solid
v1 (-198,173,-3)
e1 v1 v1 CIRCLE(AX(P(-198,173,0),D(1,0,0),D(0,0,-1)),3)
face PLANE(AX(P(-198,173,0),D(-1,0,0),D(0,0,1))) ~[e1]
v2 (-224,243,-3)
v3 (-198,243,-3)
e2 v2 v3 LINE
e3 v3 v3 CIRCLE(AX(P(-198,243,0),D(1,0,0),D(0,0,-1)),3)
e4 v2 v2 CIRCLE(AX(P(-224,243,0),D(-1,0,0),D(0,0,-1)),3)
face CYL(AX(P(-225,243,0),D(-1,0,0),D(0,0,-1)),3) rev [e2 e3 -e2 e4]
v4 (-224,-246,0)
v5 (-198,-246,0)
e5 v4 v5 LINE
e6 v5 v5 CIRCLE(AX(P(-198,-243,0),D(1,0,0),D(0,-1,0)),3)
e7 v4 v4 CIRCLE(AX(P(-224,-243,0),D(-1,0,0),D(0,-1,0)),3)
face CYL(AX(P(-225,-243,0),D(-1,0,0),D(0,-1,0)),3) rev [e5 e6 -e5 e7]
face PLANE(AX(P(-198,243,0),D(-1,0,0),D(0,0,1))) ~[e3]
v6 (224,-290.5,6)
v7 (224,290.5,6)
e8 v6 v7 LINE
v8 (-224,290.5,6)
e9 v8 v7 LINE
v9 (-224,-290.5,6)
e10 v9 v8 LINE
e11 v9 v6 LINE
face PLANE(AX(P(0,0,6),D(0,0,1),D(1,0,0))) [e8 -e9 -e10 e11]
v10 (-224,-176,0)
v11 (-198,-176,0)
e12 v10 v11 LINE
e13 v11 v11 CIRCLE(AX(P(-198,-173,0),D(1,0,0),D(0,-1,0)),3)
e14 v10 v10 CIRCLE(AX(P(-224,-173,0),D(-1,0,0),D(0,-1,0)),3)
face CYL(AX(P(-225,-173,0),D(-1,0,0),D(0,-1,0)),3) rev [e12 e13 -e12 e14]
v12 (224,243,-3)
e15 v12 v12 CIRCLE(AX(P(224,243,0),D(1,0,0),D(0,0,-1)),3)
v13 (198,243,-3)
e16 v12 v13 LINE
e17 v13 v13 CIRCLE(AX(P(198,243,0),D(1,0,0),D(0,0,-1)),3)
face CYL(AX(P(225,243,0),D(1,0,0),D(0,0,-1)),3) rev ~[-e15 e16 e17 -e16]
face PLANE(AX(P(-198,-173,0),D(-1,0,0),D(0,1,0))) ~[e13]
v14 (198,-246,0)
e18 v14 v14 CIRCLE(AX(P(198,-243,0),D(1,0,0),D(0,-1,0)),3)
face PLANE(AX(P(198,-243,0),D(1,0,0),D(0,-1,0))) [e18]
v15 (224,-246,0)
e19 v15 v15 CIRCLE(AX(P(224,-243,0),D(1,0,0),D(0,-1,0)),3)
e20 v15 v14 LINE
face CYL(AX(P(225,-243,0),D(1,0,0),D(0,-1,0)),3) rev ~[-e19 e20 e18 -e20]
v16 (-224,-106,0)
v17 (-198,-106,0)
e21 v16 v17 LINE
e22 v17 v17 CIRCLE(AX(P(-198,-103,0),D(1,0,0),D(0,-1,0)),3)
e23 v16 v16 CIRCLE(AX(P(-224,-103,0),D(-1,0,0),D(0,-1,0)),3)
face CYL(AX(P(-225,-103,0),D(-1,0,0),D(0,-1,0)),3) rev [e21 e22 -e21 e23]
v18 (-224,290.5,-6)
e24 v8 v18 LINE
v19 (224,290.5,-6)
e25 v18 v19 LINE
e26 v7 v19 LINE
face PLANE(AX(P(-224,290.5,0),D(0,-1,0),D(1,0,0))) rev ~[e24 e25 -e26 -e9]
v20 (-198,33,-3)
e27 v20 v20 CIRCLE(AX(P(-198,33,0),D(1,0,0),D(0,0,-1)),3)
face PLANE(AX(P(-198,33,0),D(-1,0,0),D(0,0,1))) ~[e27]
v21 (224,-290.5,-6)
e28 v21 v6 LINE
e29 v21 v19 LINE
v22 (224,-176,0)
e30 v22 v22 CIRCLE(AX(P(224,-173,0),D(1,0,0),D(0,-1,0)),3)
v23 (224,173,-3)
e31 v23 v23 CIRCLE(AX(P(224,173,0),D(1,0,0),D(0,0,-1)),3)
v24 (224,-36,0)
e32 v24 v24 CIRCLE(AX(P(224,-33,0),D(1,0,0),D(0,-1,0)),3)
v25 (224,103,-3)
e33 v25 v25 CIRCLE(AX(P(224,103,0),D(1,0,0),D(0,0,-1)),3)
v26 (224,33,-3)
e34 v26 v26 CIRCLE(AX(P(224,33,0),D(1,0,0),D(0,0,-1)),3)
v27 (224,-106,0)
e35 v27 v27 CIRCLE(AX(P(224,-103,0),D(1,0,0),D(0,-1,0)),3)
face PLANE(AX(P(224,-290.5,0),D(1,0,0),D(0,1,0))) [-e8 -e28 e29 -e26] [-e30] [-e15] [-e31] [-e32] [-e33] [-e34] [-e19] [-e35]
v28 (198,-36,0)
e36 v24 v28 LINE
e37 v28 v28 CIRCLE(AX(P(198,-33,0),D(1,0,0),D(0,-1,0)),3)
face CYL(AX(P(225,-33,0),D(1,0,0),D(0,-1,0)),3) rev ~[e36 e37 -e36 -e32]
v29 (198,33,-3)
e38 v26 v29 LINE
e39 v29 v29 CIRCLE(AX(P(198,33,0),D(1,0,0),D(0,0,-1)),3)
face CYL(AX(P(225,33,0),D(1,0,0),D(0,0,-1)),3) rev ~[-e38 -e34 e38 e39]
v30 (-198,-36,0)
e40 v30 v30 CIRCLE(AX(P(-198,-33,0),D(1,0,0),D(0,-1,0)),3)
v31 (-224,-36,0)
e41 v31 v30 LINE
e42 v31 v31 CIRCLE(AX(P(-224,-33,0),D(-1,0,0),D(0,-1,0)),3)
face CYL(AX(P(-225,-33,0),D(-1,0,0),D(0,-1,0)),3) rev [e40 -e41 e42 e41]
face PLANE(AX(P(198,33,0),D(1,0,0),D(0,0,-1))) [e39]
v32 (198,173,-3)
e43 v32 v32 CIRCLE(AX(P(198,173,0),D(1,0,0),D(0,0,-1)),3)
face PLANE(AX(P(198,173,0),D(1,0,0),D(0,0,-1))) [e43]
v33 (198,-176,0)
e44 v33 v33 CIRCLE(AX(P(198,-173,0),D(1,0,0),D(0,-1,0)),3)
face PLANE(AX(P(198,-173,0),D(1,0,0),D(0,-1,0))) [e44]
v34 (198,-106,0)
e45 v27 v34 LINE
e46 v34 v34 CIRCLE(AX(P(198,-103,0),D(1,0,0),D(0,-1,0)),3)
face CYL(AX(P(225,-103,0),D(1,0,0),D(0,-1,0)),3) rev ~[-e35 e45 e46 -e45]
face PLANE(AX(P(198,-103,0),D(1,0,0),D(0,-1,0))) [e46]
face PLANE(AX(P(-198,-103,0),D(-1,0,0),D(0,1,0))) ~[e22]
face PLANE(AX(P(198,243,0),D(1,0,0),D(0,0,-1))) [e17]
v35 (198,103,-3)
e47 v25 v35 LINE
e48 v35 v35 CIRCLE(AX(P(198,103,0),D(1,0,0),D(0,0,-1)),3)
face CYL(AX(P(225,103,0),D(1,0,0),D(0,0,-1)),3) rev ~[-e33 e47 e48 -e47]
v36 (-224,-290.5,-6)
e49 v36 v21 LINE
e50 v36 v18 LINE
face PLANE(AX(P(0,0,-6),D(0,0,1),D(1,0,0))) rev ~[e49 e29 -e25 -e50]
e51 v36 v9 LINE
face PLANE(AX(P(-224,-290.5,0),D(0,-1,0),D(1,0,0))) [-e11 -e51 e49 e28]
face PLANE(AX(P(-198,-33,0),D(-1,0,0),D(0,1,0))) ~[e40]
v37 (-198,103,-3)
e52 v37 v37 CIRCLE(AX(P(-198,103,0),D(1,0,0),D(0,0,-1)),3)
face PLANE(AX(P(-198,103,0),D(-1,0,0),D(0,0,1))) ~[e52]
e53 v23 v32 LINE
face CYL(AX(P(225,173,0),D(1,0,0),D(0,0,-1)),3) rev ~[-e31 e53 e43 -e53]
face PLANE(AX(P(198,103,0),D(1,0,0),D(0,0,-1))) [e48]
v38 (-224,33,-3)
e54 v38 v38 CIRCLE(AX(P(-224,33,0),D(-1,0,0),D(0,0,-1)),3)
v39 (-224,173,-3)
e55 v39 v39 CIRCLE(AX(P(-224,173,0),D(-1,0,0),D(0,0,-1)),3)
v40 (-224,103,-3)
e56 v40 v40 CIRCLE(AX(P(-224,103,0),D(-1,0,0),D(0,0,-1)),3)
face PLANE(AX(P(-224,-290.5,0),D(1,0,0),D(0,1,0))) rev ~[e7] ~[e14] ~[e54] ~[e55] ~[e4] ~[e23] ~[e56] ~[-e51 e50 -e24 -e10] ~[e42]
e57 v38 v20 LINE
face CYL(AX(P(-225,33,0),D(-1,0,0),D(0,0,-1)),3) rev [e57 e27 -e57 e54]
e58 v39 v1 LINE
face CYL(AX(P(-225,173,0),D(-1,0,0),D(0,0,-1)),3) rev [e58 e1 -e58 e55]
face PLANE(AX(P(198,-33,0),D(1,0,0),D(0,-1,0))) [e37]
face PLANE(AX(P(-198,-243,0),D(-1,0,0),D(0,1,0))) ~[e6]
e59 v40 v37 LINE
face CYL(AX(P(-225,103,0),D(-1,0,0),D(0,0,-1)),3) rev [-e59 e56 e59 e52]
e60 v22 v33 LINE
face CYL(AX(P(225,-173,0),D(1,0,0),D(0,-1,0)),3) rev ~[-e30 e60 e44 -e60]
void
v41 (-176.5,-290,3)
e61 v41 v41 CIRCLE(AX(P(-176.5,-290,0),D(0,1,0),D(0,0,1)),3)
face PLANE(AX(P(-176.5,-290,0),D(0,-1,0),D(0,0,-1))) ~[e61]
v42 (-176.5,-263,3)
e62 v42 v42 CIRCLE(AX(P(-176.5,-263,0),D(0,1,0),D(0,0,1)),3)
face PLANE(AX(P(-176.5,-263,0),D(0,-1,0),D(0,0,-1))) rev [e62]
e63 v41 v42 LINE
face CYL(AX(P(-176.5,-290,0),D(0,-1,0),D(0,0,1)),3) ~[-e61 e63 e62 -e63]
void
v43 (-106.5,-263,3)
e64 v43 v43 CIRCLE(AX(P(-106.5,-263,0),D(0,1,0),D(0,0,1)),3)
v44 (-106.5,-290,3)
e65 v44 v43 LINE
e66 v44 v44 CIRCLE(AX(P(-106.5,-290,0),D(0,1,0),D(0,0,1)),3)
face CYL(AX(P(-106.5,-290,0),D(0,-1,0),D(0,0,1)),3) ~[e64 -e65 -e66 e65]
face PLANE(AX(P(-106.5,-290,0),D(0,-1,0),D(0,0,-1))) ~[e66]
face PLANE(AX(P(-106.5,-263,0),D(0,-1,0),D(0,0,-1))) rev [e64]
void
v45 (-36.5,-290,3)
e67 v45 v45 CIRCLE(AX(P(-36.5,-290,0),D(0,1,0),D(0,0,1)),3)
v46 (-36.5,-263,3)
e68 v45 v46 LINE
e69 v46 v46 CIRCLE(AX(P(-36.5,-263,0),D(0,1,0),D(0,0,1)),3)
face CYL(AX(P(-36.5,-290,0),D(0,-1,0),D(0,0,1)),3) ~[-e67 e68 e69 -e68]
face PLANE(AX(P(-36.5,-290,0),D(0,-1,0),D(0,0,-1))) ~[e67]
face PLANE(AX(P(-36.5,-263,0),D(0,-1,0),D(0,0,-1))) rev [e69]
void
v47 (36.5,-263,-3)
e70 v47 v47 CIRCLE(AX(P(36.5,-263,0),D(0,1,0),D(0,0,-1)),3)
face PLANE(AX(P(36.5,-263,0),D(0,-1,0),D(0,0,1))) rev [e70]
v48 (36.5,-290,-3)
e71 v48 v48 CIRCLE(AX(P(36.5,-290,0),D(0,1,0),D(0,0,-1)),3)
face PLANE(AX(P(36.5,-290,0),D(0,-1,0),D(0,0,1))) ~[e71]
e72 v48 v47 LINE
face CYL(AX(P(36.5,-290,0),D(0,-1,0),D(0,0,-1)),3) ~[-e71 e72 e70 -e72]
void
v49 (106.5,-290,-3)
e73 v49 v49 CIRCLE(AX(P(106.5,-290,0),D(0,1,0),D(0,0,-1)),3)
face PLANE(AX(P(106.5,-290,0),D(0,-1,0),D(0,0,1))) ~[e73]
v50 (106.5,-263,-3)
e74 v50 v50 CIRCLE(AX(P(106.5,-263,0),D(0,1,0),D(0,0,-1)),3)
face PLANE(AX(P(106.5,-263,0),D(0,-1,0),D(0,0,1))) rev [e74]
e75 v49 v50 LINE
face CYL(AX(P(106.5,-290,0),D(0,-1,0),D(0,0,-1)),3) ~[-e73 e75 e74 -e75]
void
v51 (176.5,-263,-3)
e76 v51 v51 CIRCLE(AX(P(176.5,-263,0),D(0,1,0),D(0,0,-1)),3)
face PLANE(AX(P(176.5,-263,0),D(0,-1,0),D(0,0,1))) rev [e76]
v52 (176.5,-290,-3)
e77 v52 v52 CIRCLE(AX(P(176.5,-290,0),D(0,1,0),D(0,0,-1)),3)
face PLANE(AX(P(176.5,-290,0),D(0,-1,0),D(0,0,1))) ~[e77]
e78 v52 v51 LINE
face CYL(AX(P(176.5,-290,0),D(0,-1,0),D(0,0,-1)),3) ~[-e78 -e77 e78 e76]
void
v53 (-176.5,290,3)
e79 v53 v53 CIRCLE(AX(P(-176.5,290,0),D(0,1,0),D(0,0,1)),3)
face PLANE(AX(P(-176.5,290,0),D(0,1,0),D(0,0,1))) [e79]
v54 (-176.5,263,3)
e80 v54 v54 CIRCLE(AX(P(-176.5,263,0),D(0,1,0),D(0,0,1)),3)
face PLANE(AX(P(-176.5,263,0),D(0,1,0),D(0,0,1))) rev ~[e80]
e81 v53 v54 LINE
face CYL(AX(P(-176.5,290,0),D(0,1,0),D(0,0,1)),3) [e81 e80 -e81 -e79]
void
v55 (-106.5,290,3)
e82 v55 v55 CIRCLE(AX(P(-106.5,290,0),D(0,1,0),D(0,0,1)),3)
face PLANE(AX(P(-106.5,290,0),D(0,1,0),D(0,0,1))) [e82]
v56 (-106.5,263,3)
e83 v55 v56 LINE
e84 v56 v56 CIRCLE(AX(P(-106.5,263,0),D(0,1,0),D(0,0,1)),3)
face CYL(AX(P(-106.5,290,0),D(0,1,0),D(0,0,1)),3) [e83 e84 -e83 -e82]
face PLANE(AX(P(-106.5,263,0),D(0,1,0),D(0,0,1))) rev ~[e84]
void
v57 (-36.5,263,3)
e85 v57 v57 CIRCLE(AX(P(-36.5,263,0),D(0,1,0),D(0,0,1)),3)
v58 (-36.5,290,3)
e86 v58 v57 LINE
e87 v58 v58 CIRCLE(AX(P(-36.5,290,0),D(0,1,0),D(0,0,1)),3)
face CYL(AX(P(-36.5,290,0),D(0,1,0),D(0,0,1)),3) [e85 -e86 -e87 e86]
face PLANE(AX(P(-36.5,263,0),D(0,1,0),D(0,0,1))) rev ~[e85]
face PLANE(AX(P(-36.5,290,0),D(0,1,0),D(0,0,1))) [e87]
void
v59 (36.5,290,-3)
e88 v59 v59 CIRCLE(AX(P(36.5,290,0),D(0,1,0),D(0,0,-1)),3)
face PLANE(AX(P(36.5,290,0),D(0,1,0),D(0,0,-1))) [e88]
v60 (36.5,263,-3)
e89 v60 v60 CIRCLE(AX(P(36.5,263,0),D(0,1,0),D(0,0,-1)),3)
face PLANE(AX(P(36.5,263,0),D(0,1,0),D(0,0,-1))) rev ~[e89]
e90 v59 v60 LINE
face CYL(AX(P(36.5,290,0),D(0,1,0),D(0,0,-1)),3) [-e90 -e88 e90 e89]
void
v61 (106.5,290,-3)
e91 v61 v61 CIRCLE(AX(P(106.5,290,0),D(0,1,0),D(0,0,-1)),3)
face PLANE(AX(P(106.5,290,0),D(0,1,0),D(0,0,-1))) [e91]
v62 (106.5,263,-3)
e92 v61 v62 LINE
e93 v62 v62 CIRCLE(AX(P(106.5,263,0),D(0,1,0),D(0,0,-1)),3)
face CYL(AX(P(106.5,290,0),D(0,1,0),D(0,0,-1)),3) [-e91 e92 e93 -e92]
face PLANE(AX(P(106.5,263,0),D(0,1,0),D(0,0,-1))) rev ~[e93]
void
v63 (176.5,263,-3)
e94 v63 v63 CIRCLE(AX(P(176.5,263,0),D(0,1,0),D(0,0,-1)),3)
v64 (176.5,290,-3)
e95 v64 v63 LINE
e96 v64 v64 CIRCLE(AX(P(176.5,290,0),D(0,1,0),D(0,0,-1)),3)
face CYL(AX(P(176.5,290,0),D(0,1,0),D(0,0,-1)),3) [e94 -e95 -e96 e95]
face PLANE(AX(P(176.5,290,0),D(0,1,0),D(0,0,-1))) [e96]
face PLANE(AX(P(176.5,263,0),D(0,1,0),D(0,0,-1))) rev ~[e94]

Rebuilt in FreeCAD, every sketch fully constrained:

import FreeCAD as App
import Part
import Sketcher
Q = App.Units.Quantity


def add_polygon(sketch, points):
    """Adds a closed chain of lines whose ends are joined by coincident constraints."""
    first, n = sketch.GeometryCount, len(points)
    for a, b in zip(points, points[1:] + points[:1]):
        sketch.addGeometry(Part.LineSegment(App.Vector(*a, 0), App.Vector(*b, 0)), False)
    for i in range(n):
        sketch.addConstraint(Sketcher.Constraint("Coincident", first + i, 2, first + (i + 1) % n, 1))

doc = App.newDocument("Part")
params = doc.addObject("Spreadsheet::Sheet", "Params")
for row, (alias, value) in enumerate([
    ("sketch1_width", "448 mm"),
    ("sketch1_height", "581 mm"),
    ("pad1_length", "12 mm"),
    ("sketch2_diameter", "6 mm"),
    ("pocket1_length", "27 mm"),
    ("sketch3_diameter", "6 mm"),
    ("pocket2_length", "27 mm"),
], start=1):
    params.set(f"A{row}", alias)
    params.set(f"B{row}", "=" + value)
    params.setAlias(f"B{row}", alias)

body = doc.addObject("PartDesign::Body", "Body")

# Sketch on XY plane
sketch1 = doc.addObject("Sketcher::SketchObject", "Sketch")
body.addObject(sketch1)
sketch1.AttachmentSupport = (doc.XY_Plane, [""])
sketch1.MapMode = "FlatFace"
add_polygon(sketch1, [(-224, 290), (-224, -290), (224, -290), (224, 290)])  # lines 0-3
sketch1.addConstraint([
    Sketcher.Constraint("Vertical", 0),
    Sketcher.Constraint("Horizontal", 1),
    Sketcher.Constraint("Vertical", 2),
    Sketcher.Constraint("Horizontal", 3),
    Sketcher.Constraint("Symmetric", 0, 2, 2, 2, -1, 1),
    Sketcher.Constraint("DistanceX", 1, 1, 1, 2, Q("448 mm")),
    Sketcher.Constraint("DistanceY", 0, 2, 0, 1, Q("581 mm")),
])
sketch1.setExpression("Constraints[9]", "Params.sketch1_width")
sketch1.setExpression("Constraints[10]", "Params.sketch1_height")
pad1 = doc.addObject("PartDesign::Pad", "Pad")
body.addObject(pad1)
pad1.Profile = sketch1
pad1.setExpression("Length", "Params.pad1_length")
pad1.Midplane = True

# Sketch on YZ plane
sketch2 = doc.addObject("Sketcher::SketchObject", "Sketch001")
body.addObject(sketch2)
sketch2.AttachmentSupport = (doc.YZ_Plane, [""])
sketch2.MapMode = "FlatFace"
sketch2.AttachmentOffset = App.Placement(App.Vector(0, 0, 225), App.Rotation())
sketch2.addGeometry([
    Part.Circle(App.Vector(243, 0, 0), App.Vector(0, 0, 1), 3),  # 0
    Part.Circle(App.Vector(173, 0, 0), App.Vector(0, 0, 1), 3),  # 1
    Part.Circle(App.Vector(103, 0, 0), App.Vector(0, 0, 1), 3),  # 2
    Part.Circle(App.Vector(33, 0, 0), App.Vector(0, 0, 1), 3),  # 3
    Part.Circle(App.Vector(-33, 0, 0), App.Vector(0, 0, 1), 3),  # 4
    Part.Circle(App.Vector(-103, 0, 0), App.Vector(0, 0, 1), 3),  # 5
    Part.Circle(App.Vector(-173, 0, 0), App.Vector(0, 0, 1), 3),  # 6
    Part.Circle(App.Vector(-243, 0, 0), App.Vector(0, 0, 1), 3),  # 7
], False)
sketch2.addConstraint([
    Sketcher.Constraint("Equal", 0, 1),
    Sketcher.Constraint("Equal", 1, 2),
    Sketcher.Constraint("Equal", 2, 3),
    Sketcher.Constraint("Equal", 3, 4),
    Sketcher.Constraint("Equal", 4, 5),
    Sketcher.Constraint("Equal", 5, 6),
    Sketcher.Constraint("Equal", 6, 7),
    Sketcher.Constraint("Symmetric", 3, 3, 4, 3, -1, 1),
    Sketcher.Constraint("Symmetric", 2, 3, 5, 3, -1, 1),
    Sketcher.Constraint("Symmetric", 1, 3, 6, 3, -1, 1),
    Sketcher.Constraint("Symmetric", 0, 3, 7, 3, -1, 1),
    Sketcher.Constraint("PointOnObject", 0, 3, -1),
    Sketcher.Constraint("PointOnObject", 1, 3, -1),
    Sketcher.Constraint("PointOnObject", 2, 3, -1),
    Sketcher.Constraint("PointOnObject", 3, 3, -1),
    Sketcher.Constraint("Diameter", 0, Q("6 mm")),
    Sketcher.Constraint("DistanceX", -1, 1, 0, 3, Q("243 mm")),
    Sketcher.Constraint("DistanceX", -1, 1, 1, 3, Q("173 mm")),
    Sketcher.Constraint("DistanceX", -1, 1, 2, 3, Q("103 mm")),
    Sketcher.Constraint("DistanceX", -1, 1, 3, 3, Q("33 mm")),
])
sketch2.setExpression("Constraints[15]", "Params.sketch2_diameter")
pocket1 = doc.addObject("PartDesign::Pocket", "Pocket")
body.addObject(pocket1)
pocket1.Profile = sketch2
pocket1.setExpression("Length", "Params.pocket1_length")
doc.recompute()

mirrored = doc.addObject("PartDesign::Mirrored", "Mirrored")
body.addObject(mirrored)
mirrored.Originals = [pocket1]
mirrored.MirrorPlane = (doc.YZ_Plane, [""])
body.Tip = mirrored

# Sketch on XZ plane
sketch3 = doc.addObject("Sketcher::SketchObject", "Sketch002")
body.addObject(sketch3)
sketch3.AttachmentSupport = (doc.XZ_Plane, [""])
sketch3.MapMode = "FlatFace"
sketch3.AttachmentOffset = App.Placement(App.Vector(0, 0, -290), App.Rotation())
sketch3.addGeometry([
    Part.Circle(App.Vector(-176.5, 0, 0), App.Vector(0, 0, 1), 3),  # 0
    Part.Circle(App.Vector(-106.5, 0, 0), App.Vector(0, 0, 1), 3),  # 1
    Part.Circle(App.Vector(-36.5, 0, 0), App.Vector(0, 0, 1), 3),  # 2
    Part.Circle(App.Vector(36.5, 0, 0), App.Vector(0, 0, 1), 3),  # 3
    Part.Circle(App.Vector(106.5, 0, 0), App.Vector(0, 0, 1), 3),  # 4
    Part.Circle(App.Vector(176.5, 0, 0), App.Vector(0, 0, 1), 3),  # 5
], False)
sketch3.addConstraint([
    Sketcher.Constraint("Equal", 0, 1),
    Sketcher.Constraint("Equal", 1, 2),
    Sketcher.Constraint("Equal", 2, 3),
    Sketcher.Constraint("Equal", 3, 4),
    Sketcher.Constraint("Equal", 4, 5),
    Sketcher.Constraint("Symmetric", 2, 3, 3, 3, -1, 1),
    Sketcher.Constraint("Symmetric", 1, 3, 4, 3, -1, 1),
    Sketcher.Constraint("Symmetric", 0, 3, 5, 3, -1, 1),
    Sketcher.Constraint("PointOnObject", 0, 3, -1),
    Sketcher.Constraint("PointOnObject", 1, 3, -1),
    Sketcher.Constraint("PointOnObject", 2, 3, -1),
    Sketcher.Constraint("Diameter", 0, Q("6 mm")),
    Sketcher.Constraint("DistanceX", 0, 3, 1, 3, Q("70 mm")),
    Sketcher.Constraint("DistanceX", 1, 3, 2, 3, Q("70 mm")),
    Sketcher.Constraint("DistanceX", 2, 3, 3, 3, Q("73 mm")),
])
sketch3.setExpression("Constraints[11]", "Params.sketch3_diameter")
pocket2 = doc.addObject("PartDesign::Pocket", "Pocket001")
body.addObject(pocket2)
pocket2.Profile = sketch3
pocket2.setExpression("Length", "Params.pocket2_length")
pocket2.Reversed = True
doc.recompute()

mirrored2 = doc.addObject("PartDesign::Mirrored", "Mirrored001")
body.addObject(mirrored2)
mirrored2.Originals = [pocket2]
mirrored2.MirrorPlane = (doc.XZ_Plane, [""])
body.Tip = mirrored2

doc.recompute()
